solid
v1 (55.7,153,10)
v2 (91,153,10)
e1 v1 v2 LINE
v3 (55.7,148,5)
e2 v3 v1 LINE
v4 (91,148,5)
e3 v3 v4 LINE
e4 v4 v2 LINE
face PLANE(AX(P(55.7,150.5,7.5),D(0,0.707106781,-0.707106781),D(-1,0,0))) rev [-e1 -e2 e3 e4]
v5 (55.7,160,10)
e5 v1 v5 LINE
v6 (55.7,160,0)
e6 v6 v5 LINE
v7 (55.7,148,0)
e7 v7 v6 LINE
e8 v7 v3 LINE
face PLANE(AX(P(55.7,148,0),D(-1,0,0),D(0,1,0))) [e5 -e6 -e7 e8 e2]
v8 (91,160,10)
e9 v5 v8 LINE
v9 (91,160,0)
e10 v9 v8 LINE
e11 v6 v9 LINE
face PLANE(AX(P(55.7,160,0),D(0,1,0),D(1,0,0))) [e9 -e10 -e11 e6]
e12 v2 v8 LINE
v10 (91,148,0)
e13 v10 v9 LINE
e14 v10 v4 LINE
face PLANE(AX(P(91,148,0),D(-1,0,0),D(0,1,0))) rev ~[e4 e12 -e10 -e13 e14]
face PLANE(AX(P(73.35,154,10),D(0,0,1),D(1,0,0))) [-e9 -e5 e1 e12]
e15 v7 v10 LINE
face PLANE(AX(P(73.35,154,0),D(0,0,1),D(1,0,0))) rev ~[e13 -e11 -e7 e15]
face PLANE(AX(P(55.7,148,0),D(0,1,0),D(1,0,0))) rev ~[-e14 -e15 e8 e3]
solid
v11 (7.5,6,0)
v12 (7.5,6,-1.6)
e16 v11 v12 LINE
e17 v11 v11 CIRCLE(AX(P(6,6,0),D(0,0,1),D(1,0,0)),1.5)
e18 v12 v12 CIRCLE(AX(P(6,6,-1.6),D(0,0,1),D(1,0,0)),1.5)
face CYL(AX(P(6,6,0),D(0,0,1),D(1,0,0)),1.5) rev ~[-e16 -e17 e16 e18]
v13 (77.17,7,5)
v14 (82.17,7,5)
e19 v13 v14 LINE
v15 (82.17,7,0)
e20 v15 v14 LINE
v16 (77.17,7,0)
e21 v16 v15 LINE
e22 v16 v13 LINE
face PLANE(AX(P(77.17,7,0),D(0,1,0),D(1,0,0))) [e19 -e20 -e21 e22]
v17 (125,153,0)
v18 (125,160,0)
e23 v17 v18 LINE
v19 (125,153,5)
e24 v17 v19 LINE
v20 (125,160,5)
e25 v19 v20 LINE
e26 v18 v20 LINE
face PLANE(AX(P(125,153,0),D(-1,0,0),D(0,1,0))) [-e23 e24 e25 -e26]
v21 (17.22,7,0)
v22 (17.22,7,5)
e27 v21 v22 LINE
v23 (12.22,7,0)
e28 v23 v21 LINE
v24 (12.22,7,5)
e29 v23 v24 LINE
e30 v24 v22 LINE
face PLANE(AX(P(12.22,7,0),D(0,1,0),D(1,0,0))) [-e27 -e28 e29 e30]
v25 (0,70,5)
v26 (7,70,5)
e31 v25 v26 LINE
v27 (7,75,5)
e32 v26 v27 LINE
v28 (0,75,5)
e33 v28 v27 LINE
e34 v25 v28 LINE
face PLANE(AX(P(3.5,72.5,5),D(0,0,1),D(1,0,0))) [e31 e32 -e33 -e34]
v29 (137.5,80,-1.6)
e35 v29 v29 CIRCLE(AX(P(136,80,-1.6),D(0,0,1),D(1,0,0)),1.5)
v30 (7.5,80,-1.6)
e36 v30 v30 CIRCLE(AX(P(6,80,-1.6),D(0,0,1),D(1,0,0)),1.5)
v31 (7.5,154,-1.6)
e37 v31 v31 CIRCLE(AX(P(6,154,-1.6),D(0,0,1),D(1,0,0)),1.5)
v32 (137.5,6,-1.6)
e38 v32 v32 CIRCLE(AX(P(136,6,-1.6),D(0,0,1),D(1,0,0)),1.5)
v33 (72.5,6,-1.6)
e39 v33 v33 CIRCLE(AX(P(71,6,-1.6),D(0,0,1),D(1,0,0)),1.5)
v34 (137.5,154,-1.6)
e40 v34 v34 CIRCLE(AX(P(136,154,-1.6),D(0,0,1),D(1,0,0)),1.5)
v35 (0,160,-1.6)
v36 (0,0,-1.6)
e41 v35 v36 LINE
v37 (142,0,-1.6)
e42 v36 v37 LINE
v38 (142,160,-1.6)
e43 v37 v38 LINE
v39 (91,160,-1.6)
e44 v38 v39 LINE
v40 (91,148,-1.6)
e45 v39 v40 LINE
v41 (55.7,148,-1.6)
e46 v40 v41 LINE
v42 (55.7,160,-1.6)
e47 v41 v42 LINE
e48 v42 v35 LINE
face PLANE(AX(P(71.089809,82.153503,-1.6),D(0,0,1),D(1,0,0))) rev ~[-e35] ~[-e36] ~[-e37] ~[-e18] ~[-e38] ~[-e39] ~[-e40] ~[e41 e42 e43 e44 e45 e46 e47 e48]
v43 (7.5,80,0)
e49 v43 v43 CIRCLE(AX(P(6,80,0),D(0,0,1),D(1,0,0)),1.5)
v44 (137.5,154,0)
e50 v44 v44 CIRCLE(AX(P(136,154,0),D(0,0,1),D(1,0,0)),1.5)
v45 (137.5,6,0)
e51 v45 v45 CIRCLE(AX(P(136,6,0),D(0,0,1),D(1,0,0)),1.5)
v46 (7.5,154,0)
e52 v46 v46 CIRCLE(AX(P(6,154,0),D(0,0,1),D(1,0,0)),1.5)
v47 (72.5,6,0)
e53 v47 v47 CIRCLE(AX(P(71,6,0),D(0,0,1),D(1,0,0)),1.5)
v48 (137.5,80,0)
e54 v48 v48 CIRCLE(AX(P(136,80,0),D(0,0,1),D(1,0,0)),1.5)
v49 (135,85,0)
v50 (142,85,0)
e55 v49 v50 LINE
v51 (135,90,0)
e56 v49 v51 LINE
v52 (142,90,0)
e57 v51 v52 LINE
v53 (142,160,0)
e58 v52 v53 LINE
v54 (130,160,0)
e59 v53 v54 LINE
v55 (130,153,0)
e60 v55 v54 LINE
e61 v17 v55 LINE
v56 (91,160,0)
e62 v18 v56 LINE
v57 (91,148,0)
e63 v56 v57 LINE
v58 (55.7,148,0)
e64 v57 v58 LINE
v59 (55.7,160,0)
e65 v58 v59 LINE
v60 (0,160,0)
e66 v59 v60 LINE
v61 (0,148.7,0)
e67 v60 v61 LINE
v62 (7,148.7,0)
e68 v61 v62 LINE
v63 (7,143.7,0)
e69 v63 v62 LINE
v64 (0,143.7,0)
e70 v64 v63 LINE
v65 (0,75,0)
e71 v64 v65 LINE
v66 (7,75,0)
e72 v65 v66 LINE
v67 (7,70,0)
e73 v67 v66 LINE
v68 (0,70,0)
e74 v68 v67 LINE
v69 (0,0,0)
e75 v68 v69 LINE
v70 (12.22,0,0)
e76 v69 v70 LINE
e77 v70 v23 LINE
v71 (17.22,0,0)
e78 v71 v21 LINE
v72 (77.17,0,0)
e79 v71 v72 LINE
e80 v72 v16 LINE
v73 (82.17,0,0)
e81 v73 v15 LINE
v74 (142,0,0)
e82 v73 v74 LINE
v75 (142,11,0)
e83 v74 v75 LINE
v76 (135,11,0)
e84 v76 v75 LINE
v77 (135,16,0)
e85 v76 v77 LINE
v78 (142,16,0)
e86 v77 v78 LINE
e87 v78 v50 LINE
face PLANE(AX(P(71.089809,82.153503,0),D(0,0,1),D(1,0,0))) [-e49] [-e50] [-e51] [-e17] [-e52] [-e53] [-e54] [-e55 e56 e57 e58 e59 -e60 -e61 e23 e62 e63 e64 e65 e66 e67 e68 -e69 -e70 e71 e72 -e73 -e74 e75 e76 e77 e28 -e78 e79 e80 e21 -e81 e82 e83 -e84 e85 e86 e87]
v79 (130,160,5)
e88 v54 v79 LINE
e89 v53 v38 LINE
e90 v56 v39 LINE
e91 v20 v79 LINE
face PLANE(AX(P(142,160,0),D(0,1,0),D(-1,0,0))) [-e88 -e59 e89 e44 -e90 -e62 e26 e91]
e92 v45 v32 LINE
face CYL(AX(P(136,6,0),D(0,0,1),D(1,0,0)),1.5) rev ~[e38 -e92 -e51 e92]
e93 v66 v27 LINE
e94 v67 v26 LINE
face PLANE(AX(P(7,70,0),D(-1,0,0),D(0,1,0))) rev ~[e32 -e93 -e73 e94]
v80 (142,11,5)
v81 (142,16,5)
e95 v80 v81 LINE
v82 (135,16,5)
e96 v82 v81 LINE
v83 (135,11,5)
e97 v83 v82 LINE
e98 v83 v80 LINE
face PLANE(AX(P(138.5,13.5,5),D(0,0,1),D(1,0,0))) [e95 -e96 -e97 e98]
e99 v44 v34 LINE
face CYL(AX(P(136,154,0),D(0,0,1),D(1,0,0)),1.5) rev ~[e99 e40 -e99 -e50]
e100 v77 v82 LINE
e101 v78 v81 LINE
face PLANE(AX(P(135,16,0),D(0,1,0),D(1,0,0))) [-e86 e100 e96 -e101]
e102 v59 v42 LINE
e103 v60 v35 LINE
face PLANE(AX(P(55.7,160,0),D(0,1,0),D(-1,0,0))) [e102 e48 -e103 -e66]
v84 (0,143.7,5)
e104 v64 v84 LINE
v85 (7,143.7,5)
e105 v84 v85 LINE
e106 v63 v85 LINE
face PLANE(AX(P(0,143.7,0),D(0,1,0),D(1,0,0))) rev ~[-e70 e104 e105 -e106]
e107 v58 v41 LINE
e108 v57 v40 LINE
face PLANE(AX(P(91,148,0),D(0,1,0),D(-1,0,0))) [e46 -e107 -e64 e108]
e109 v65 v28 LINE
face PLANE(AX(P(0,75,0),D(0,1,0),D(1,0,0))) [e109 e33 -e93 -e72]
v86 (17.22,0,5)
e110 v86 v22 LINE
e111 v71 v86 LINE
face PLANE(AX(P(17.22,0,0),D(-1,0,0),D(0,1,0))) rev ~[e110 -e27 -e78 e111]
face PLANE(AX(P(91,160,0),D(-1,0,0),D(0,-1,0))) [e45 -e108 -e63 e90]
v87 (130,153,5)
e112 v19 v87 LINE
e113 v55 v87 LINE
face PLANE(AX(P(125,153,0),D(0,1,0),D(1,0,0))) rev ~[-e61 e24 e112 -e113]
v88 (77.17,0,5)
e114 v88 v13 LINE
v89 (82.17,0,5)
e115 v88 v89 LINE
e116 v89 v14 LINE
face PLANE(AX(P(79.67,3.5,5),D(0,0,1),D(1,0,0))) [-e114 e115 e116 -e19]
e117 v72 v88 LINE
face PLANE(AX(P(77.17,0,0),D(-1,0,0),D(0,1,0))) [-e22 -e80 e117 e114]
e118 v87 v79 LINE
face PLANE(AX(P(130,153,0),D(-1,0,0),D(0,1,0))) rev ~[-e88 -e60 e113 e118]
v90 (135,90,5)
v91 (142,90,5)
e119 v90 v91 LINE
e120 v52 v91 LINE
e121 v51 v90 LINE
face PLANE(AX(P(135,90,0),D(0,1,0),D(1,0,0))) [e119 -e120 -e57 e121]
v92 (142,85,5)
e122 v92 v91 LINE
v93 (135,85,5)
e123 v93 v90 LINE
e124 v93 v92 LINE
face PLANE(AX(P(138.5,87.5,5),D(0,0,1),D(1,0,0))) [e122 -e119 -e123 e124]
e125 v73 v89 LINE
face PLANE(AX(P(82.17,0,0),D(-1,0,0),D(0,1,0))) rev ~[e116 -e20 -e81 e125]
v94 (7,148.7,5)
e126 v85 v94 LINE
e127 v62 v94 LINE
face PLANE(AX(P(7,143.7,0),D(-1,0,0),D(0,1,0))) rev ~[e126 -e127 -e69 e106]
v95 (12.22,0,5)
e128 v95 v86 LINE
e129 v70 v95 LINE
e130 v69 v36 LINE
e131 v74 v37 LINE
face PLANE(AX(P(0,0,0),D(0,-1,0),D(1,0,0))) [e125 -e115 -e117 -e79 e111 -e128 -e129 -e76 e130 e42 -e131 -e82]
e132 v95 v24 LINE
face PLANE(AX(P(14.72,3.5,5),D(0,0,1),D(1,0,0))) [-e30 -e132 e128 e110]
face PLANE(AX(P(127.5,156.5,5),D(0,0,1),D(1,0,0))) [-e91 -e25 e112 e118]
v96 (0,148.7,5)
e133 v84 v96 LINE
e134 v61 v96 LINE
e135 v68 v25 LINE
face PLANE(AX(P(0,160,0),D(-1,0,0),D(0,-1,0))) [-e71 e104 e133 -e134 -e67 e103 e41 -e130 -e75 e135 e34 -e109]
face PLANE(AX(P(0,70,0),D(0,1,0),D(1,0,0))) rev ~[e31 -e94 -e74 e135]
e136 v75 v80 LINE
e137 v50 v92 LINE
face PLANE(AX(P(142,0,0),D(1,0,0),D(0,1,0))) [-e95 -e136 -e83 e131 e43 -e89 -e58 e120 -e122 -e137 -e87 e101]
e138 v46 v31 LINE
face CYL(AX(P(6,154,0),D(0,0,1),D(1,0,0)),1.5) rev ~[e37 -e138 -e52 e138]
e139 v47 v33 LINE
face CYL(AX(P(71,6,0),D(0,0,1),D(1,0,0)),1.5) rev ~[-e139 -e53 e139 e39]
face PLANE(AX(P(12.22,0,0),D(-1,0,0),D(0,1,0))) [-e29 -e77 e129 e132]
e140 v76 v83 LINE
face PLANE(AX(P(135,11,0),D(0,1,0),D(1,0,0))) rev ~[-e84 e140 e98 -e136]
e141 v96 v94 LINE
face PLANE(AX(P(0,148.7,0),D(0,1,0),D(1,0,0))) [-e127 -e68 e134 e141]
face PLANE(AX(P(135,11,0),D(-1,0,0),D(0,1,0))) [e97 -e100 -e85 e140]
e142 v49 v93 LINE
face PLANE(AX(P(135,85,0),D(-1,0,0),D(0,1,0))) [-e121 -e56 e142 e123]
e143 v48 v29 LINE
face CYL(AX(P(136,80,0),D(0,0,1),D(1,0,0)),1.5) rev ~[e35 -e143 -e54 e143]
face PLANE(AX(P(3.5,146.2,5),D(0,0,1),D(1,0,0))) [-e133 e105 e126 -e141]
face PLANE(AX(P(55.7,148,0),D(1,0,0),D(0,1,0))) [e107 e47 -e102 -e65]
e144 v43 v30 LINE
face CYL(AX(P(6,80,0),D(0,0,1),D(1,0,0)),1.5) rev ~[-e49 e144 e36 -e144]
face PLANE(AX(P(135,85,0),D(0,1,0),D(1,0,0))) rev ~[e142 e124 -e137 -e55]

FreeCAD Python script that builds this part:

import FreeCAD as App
import Part
import Sketcher


def edges_at(feature, points):
    """Names of the edges that pass closest to the given points."""
    edges = feature.Shape.Edges
    near = lambda p: min(range(len(edges)), key=lambda i: edges[i].distToShape(Part.Vertex(*p))[0])
    return sorted({f"Edge{near(p) + 1}" for p in points})


def add_polygon(sketch, points):
    """Adds a closed chain of lines whose ends are joined by coincident constraints."""
    first, n = sketch.GeometryCount, len(points)
    for a, b in zip(points, points[1:] + points[:1]):
        sketch.addGeometry(Part.LineSegment(App.Vector(*a, 0), App.Vector(*b, 0)), False)
    for i in range(n):
        sketch.addConstraint(Sketcher.Constraint("Coincident", first + i, 2, first + (i + 1) % n, 1))

doc = App.newDocument("Part")
params = doc.addObject("Spreadsheet::Sheet", "Params")
for row, (alias, value) in enumerate([
    ("sketch1_diameter", "3 mm"),
    ("sketch1_width", "142 mm"),
    ("sketch1_width2", "51 mm"),
    ("sketch1_height", "160 mm"),
    ("sketch1_height2", "12 mm"),
    ("pad1_length", "1.6 mm"),
    ("sketch2_width", "7 mm"),
    ("sketch2_width2", "5 mm"),
    ("pad2_length", "5 mm"),
    ("sketch3_height", "12 mm"),
    ("sketch3_width", "35.3 mm"),
    ("pad3_length", "10 mm"),
    ("chamfer_size", "5 mm"),
], start=1):
    params.set(f"A{row}", alias)
    params.set(f"B{row}", "=" + value)
    params.setAlias(f"B{row}", alias)

body = doc.addObject("PartDesign::Body", "Body")

# Sketch on XY plane
sketch1 = body.newObject("Sketcher::SketchObject", "Sketch")
sketch1.AttachmentSupport = (doc.getObject("XY_Plane"), [""])
sketch1.MapMode = "FlatFace"
add_polygon(sketch1, [(0, 160), (0, 0), (142, 0), (142, 160), (91, 160), (91, 148), (55.7, 148), (55.7, 160)])  # lines 0-7
sketch1.addGeometry(Part.Circle(App.Vector(6, 6, 0), App.Vector(0, 0, 1), 1.5), False)  # 8
sketch1.addGeometry(Part.Circle(App.Vector(71, 6, 0), App.Vector(0, 0, 1), 1.5), False)  # 9
sketch1.addGeometry(Part.Circle(App.Vector(136, 6, 0), App.Vector(0, 0, 1), 1.5), False)  # 10
sketch1.addGeometry(Part.Circle(App.Vector(6, 80, 0), App.Vector(0, 0, 1), 1.5), False)  # 11
sketch1.addGeometry(Part.Circle(App.Vector(6, 154, 0), App.Vector(0, 0, 1), 1.5), False)  # 12
sketch1.addGeometry(Part.Circle(App.Vector(136, 80, 0), App.Vector(0, 0, 1), 1.5), False)  # 13
sketch1.addGeometry(Part.Circle(App.Vector(136, 154, 0), App.Vector(0, 0, 1), 1.5), False)  # 14
sketch1.addConstraint(Sketcher.Constraint("Vertical", 0))
sketch1.addConstraint(Sketcher.Constraint("Horizontal", 1))
sketch1.addConstraint(Sketcher.Constraint("Vertical", 2))
sketch1.addConstraint(Sketcher.Constraint("Horizontal", 3))
sketch1.addConstraint(Sketcher.Constraint("Vertical", 4))
sketch1.addConstraint(Sketcher.Constraint("Horizontal", 5))
sketch1.addConstraint(Sketcher.Constraint("Vertical", 6))
sketch1.addConstraint(Sketcher.Constraint("Horizontal", 7))
sketch1.addConstraint(Sketcher.Constraint("Coincident", 0, 2, -1, 1))
sketch1.addConstraint(Sketcher.Constraint("Equal", 8, 9))
sketch1.addConstraint(Sketcher.Constraint("Equal", 9, 10))
sketch1.addConstraint(Sketcher.Constraint("Equal", 10, 11))
sketch1.addConstraint(Sketcher.Constraint("Equal", 11, 12))
sketch1.addConstraint(Sketcher.Constraint("Equal", 12, 13))
sketch1.addConstraint(Sketcher.Constraint("Equal", 13, 14))
sketch1.addConstraint(Sketcher.Constraint("Horizontal", 8, 3, 9, 3))
sketch1.addConstraint(Sketcher.Constraint("Horizontal", 9, 3, 10, 3))
sketch1.addConstraint(Sketcher.Constraint("Horizontal", 11, 3, 13, 3))
sketch1.addConstraint(Sketcher.Constraint("Horizontal", 12, 3, 14, 3))
sketch1.addConstraint(Sketcher.Constraint("Horizontal", 3, 2, 6, 2))
sketch1.addConstraint(Sketcher.Constraint("Vertical", 8, 3, 11, 3))
sketch1.addConstraint(Sketcher.Constraint("Vertical", 11, 3, 12, 3))
sketch1.addConstraint(Sketcher.Constraint("Vertical", 10, 3, 13, 3))
sketch1.addConstraint(Sketcher.Constraint("Vertical", 13, 3, 14, 3))
sketch1.addConstraint(Sketcher.Constraint("Diameter", 8, 3.0))
sketch1.addConstraint(Sketcher.Constraint("DistanceX", 1, 1, 1, 2, 142.0))
sketch1.addConstraint(Sketcher.Constraint("DistanceX", 3, 2, 3, 1, 51.0))
sketch1.addConstraint(Sketcher.Constraint("DistanceY", 0, 2, 0, 1, 160.0))
sketch1.addConstraint(Sketcher.Constraint("DistanceY", 4, 2, 4, 1, 12.0))
sketch1.addConstraint(Sketcher.Constraint("DistanceX", 5, 2, 5, 1, 35.3))
sketch1.addConstraint(Sketcher.Constraint("DistanceX", -1, 1, 8, 3, 6.0))
sketch1.addConstraint(Sketcher.Constraint("DistanceY", -1, 1, 8, 3, 6.0))
sketch1.addConstraint(Sketcher.Constraint("DistanceX", -1, 1, 9, 3, 71.0))
sketch1.addConstraint(Sketcher.Constraint("DistanceX", -1, 1, 10, 3, 136.0))
sketch1.addConstraint(Sketcher.Constraint("DistanceY", -1, 1, 11, 3, 80.0))
sketch1.addConstraint(Sketcher.Constraint("DistanceY", -1, 1, 12, 3, 154.0))
sketch1.setExpression("Constraints[32]", "Params.sketch1_diameter")
sketch1.setExpression("Constraints[33]", "Params.sketch1_width")
sketch1.setExpression("Constraints[34]", "Params.sketch1_width2")
sketch1.setExpression("Constraints[35]", "Params.sketch1_height")
sketch1.setExpression("Constraints[36]", "Params.sketch1_height2")
pad1 = body.newObject("PartDesign::Pad", "Pad")
pad1.Profile = sketch1
pad1.setExpression("Length", "Params.pad1_length")
pad1.Reversed = True

# Sketch on XY plane
sketch2 = body.newObject("Sketcher::SketchObject", "Sketch001")
sketch2.AttachmentSupport = (doc.getObject("XY_Plane"), [""])
sketch2.MapMode = "FlatFace"
add_polygon(sketch2, [(0, 148.7), (0, 143.7), (7, 143.7), (7, 148.7)])  # lines 0-3
add_polygon(sketch2, [(0, 75), (0, 70), (7, 70), (7, 75)])  # lines 4-7
add_polygon(sketch2, [(125, 160), (125, 153), (130, 153), (130, 160)])  # lines 8-11
add_polygon(sketch2, [(135, 90), (135, 85), (142, 85), (142, 90)])  # lines 12-15
add_polygon(sketch2, [(135, 16), (135, 11), (142, 11), (142, 16)])  # lines 16-19
add_polygon(sketch2, [(77.2, 7), (77.2, 0), (82.2, 0), (82.2, 7)])  # lines 20-23
add_polygon(sketch2, [(12.2, 7), (12.2, 0), (17.2, 0), (17.2, 7)])  # lines 24-27
sketch2.addConstraint(Sketcher.Constraint("Vertical", 0))
sketch2.addConstraint(Sketcher.Constraint("Horizontal", 1))
sketch2.addConstraint(Sketcher.Constraint("Vertical", 2))
sketch2.addConstraint(Sketcher.Constraint("Horizontal", 3))
sketch2.addConstraint(Sketcher.Constraint("Vertical", 4))
sketch2.addConstraint(Sketcher.Constraint("Horizontal", 5))
sketch2.addConstraint(Sketcher.Constraint("Vertical", 6))
sketch2.addConstraint(Sketcher.Constraint("Horizontal", 7))
sketch2.addConstraint(Sketcher.Constraint("Vertical", 8))
sketch2.addConstraint(Sketcher.Constraint("Horizontal", 9))
sketch2.addConstraint(Sketcher.Constraint("Vertical", 10))
sketch2.addConstraint(Sketcher.Constraint("Horizontal", 11))
sketch2.addConstraint(Sketcher.Constraint("Vertical", 12))
sketch2.addConstraint(Sketcher.Constraint("Horizontal", 13))
sketch2.addConstraint(Sketcher.Constraint("Vertical", 14))
sketch2.addConstraint(Sketcher.Constraint("Horizontal", 15))
sketch2.addConstraint(Sketcher.Constraint("Vertical", 16))
sketch2.addConstraint(Sketcher.Constraint("Horizontal", 17))
sketch2.addConstraint(Sketcher.Constraint("Vertical", 18))
sketch2.addConstraint(Sketcher.Constraint("Horizontal", 19))
sketch2.addConstraint(Sketcher.Constraint("Vertical", 20))
sketch2.addConstraint(Sketcher.Constraint("Horizontal", 21))
sketch2.addConstraint(Sketcher.Constraint("Vertical", 22))
sketch2.addConstraint(Sketcher.Constraint("Horizontal", 23))
sketch2.addConstraint(Sketcher.Constraint("Vertical", 24))
sketch2.addConstraint(Sketcher.Constraint("Horizontal", 25))
sketch2.addConstraint(Sketcher.Constraint("Vertical", 26))
sketch2.addConstraint(Sketcher.Constraint("Horizontal", 27))
sketch2.addConstraint(Sketcher.Constraint("PointOnObject", 0, 2, -2))
sketch2.addConstraint(Sketcher.Constraint("PointOnObject", 4, 2, -2))
sketch2.addConstraint(Sketcher.Constraint("PointOnObject", 20, 2, -1))
sketch2.addConstraint(Sketcher.Constraint("PointOnObject", 24, 2, -1))
sketch2.addConstraint(Sketcher.Constraint("Horizontal", 23, 2, 26, 2))
sketch2.addConstraint(Sketcher.Constraint("Vertical", 2, 2, 5, 2))
sketch2.addConstraint(Sketcher.Constraint("Vertical", 15, 2, 16, 2))
sketch2.addConstraint(Sketcher.Constraint("Vertical", 14, 2, 17, 2))
sketch2.addConstraint(Sketcher.Constraint("Equal", 7, 13))
sketch2.addConstraint(Sketcher.Constraint("Equal", 11, 21))
sketch2.addConstraint(Sketcher.Constraint("Equal", 23, 25))
sketch2.addConstraint(Sketcher.Constraint("Equal", 27, 0))
sketch2.addConstraint(Sketcher.Constraint("Equal", 2, 4))
sketch2.addConstraint(Sketcher.Constraint("Equal", 19, 8))
sketch2.addConstraint(Sketcher.Constraint("Equal", 6, 12))
sketch2.addConstraint(Sketcher.Constraint("Equal", 14, 16))
sketch2.addConstraint(Sketcher.Constraint("Equal", 10, 20))
sketch2.addConstraint(Sketcher.Constraint("DistanceX", 1, 1, 1, 2, 7.0))
sketch2.addConstraint(Sketcher.Constraint("DistanceX", 9, 1, 9, 2, 5.0))
sketch2.addConstraint(Sketcher.Constraint("DistanceY", -1, 1, 4, 2, 70.0))
sketch2.addConstraint(Sketcher.Constraint("DistanceX", -1, 1, 8, 2, 125.0))
sketch2.addConstraint(Sketcher.Constraint("DistanceY", -1, 1, 8, 2, 153.0))
sketch2.addConstraint(Sketcher.Constraint("DistanceX", -1, 1, 12, 2, 135.0))
sketch2.addConstraint(Sketcher.Constraint("DistanceY", -1, 1, 12, 2, 85.0))
sketch2.addConstraint(Sketcher.Constraint("DistanceY", -1, 1, 16, 2, 11.0))
sketch2.addConstraint(Sketcher.Constraint("DistanceY", -1, 1, 0, 2, 143.7))
sketch2.addConstraint(Sketcher.Constraint("DistanceX", -1, 1, 20, 2, 77.17))
sketch2.addConstraint(Sketcher.Constraint("DistanceX", -1, 1, 24, 2, 12.22))
sketch2.setExpression("Constraints[73]", "Params.sketch2_width")
sketch2.setExpression("Constraints[74]", "Params.sketch2_width2")
pad2 = body.newObject("PartDesign::Pad", "Pad001")
pad2.Profile = sketch2
pad2.setExpression("Length", "Params.pad2_length")
body2 = doc.addObject("PartDesign::Body", "Body001")

# Sketch on XY plane
sketch3 = body2.newObject("Sketcher::SketchObject", "Sketch002")
sketch3.AttachmentSupport = (doc.getObject("XY_Plane001"), [""])
sketch3.MapMode = "FlatFace"
add_polygon(sketch3, [(56, 160), (56, 148), (91, 148), (91, 160)])  # lines 0-3
sketch3.addConstraint(Sketcher.Constraint("Vertical", 0))
sketch3.addConstraint(Sketcher.Constraint("Horizontal", 1))
sketch3.addConstraint(Sketcher.Constraint("Vertical", 2))
sketch3.addConstraint(Sketcher.Constraint("Horizontal", 3))
sketch3.addConstraint(Sketcher.Constraint("DistanceY", 0, 2, 0, 1, 12.0))
sketch3.addConstraint(Sketcher.Constraint("DistanceX", 1, 1, 1, 2, 35.3))
sketch3.addConstraint(Sketcher.Constraint("DistanceY", -1, 1, 0, 2, 148.0))
sketch3.addConstraint(Sketcher.Constraint("DistanceX", -1, 1, 1, 2, 91.0))
sketch3.setExpression("Constraints[8]", "Params.sketch3_height")
sketch3.setExpression("Constraints[9]", "Params.sketch3_width")
pad3 = body2.newObject("PartDesign::Pad", "Pad002")
pad3.Profile = sketch3
pad3.setExpression("Length", "Params.pad3_length")
doc.recompute()

chamfer = body2.newObject("PartDesign::Chamfer", "Chamfer")
chamfer.Base = (pad3, edges_at(pad3, [(73.35, 148, 10)]))
chamfer.setExpression("Size", "Params.chamfer_size")

doc.recompute()
